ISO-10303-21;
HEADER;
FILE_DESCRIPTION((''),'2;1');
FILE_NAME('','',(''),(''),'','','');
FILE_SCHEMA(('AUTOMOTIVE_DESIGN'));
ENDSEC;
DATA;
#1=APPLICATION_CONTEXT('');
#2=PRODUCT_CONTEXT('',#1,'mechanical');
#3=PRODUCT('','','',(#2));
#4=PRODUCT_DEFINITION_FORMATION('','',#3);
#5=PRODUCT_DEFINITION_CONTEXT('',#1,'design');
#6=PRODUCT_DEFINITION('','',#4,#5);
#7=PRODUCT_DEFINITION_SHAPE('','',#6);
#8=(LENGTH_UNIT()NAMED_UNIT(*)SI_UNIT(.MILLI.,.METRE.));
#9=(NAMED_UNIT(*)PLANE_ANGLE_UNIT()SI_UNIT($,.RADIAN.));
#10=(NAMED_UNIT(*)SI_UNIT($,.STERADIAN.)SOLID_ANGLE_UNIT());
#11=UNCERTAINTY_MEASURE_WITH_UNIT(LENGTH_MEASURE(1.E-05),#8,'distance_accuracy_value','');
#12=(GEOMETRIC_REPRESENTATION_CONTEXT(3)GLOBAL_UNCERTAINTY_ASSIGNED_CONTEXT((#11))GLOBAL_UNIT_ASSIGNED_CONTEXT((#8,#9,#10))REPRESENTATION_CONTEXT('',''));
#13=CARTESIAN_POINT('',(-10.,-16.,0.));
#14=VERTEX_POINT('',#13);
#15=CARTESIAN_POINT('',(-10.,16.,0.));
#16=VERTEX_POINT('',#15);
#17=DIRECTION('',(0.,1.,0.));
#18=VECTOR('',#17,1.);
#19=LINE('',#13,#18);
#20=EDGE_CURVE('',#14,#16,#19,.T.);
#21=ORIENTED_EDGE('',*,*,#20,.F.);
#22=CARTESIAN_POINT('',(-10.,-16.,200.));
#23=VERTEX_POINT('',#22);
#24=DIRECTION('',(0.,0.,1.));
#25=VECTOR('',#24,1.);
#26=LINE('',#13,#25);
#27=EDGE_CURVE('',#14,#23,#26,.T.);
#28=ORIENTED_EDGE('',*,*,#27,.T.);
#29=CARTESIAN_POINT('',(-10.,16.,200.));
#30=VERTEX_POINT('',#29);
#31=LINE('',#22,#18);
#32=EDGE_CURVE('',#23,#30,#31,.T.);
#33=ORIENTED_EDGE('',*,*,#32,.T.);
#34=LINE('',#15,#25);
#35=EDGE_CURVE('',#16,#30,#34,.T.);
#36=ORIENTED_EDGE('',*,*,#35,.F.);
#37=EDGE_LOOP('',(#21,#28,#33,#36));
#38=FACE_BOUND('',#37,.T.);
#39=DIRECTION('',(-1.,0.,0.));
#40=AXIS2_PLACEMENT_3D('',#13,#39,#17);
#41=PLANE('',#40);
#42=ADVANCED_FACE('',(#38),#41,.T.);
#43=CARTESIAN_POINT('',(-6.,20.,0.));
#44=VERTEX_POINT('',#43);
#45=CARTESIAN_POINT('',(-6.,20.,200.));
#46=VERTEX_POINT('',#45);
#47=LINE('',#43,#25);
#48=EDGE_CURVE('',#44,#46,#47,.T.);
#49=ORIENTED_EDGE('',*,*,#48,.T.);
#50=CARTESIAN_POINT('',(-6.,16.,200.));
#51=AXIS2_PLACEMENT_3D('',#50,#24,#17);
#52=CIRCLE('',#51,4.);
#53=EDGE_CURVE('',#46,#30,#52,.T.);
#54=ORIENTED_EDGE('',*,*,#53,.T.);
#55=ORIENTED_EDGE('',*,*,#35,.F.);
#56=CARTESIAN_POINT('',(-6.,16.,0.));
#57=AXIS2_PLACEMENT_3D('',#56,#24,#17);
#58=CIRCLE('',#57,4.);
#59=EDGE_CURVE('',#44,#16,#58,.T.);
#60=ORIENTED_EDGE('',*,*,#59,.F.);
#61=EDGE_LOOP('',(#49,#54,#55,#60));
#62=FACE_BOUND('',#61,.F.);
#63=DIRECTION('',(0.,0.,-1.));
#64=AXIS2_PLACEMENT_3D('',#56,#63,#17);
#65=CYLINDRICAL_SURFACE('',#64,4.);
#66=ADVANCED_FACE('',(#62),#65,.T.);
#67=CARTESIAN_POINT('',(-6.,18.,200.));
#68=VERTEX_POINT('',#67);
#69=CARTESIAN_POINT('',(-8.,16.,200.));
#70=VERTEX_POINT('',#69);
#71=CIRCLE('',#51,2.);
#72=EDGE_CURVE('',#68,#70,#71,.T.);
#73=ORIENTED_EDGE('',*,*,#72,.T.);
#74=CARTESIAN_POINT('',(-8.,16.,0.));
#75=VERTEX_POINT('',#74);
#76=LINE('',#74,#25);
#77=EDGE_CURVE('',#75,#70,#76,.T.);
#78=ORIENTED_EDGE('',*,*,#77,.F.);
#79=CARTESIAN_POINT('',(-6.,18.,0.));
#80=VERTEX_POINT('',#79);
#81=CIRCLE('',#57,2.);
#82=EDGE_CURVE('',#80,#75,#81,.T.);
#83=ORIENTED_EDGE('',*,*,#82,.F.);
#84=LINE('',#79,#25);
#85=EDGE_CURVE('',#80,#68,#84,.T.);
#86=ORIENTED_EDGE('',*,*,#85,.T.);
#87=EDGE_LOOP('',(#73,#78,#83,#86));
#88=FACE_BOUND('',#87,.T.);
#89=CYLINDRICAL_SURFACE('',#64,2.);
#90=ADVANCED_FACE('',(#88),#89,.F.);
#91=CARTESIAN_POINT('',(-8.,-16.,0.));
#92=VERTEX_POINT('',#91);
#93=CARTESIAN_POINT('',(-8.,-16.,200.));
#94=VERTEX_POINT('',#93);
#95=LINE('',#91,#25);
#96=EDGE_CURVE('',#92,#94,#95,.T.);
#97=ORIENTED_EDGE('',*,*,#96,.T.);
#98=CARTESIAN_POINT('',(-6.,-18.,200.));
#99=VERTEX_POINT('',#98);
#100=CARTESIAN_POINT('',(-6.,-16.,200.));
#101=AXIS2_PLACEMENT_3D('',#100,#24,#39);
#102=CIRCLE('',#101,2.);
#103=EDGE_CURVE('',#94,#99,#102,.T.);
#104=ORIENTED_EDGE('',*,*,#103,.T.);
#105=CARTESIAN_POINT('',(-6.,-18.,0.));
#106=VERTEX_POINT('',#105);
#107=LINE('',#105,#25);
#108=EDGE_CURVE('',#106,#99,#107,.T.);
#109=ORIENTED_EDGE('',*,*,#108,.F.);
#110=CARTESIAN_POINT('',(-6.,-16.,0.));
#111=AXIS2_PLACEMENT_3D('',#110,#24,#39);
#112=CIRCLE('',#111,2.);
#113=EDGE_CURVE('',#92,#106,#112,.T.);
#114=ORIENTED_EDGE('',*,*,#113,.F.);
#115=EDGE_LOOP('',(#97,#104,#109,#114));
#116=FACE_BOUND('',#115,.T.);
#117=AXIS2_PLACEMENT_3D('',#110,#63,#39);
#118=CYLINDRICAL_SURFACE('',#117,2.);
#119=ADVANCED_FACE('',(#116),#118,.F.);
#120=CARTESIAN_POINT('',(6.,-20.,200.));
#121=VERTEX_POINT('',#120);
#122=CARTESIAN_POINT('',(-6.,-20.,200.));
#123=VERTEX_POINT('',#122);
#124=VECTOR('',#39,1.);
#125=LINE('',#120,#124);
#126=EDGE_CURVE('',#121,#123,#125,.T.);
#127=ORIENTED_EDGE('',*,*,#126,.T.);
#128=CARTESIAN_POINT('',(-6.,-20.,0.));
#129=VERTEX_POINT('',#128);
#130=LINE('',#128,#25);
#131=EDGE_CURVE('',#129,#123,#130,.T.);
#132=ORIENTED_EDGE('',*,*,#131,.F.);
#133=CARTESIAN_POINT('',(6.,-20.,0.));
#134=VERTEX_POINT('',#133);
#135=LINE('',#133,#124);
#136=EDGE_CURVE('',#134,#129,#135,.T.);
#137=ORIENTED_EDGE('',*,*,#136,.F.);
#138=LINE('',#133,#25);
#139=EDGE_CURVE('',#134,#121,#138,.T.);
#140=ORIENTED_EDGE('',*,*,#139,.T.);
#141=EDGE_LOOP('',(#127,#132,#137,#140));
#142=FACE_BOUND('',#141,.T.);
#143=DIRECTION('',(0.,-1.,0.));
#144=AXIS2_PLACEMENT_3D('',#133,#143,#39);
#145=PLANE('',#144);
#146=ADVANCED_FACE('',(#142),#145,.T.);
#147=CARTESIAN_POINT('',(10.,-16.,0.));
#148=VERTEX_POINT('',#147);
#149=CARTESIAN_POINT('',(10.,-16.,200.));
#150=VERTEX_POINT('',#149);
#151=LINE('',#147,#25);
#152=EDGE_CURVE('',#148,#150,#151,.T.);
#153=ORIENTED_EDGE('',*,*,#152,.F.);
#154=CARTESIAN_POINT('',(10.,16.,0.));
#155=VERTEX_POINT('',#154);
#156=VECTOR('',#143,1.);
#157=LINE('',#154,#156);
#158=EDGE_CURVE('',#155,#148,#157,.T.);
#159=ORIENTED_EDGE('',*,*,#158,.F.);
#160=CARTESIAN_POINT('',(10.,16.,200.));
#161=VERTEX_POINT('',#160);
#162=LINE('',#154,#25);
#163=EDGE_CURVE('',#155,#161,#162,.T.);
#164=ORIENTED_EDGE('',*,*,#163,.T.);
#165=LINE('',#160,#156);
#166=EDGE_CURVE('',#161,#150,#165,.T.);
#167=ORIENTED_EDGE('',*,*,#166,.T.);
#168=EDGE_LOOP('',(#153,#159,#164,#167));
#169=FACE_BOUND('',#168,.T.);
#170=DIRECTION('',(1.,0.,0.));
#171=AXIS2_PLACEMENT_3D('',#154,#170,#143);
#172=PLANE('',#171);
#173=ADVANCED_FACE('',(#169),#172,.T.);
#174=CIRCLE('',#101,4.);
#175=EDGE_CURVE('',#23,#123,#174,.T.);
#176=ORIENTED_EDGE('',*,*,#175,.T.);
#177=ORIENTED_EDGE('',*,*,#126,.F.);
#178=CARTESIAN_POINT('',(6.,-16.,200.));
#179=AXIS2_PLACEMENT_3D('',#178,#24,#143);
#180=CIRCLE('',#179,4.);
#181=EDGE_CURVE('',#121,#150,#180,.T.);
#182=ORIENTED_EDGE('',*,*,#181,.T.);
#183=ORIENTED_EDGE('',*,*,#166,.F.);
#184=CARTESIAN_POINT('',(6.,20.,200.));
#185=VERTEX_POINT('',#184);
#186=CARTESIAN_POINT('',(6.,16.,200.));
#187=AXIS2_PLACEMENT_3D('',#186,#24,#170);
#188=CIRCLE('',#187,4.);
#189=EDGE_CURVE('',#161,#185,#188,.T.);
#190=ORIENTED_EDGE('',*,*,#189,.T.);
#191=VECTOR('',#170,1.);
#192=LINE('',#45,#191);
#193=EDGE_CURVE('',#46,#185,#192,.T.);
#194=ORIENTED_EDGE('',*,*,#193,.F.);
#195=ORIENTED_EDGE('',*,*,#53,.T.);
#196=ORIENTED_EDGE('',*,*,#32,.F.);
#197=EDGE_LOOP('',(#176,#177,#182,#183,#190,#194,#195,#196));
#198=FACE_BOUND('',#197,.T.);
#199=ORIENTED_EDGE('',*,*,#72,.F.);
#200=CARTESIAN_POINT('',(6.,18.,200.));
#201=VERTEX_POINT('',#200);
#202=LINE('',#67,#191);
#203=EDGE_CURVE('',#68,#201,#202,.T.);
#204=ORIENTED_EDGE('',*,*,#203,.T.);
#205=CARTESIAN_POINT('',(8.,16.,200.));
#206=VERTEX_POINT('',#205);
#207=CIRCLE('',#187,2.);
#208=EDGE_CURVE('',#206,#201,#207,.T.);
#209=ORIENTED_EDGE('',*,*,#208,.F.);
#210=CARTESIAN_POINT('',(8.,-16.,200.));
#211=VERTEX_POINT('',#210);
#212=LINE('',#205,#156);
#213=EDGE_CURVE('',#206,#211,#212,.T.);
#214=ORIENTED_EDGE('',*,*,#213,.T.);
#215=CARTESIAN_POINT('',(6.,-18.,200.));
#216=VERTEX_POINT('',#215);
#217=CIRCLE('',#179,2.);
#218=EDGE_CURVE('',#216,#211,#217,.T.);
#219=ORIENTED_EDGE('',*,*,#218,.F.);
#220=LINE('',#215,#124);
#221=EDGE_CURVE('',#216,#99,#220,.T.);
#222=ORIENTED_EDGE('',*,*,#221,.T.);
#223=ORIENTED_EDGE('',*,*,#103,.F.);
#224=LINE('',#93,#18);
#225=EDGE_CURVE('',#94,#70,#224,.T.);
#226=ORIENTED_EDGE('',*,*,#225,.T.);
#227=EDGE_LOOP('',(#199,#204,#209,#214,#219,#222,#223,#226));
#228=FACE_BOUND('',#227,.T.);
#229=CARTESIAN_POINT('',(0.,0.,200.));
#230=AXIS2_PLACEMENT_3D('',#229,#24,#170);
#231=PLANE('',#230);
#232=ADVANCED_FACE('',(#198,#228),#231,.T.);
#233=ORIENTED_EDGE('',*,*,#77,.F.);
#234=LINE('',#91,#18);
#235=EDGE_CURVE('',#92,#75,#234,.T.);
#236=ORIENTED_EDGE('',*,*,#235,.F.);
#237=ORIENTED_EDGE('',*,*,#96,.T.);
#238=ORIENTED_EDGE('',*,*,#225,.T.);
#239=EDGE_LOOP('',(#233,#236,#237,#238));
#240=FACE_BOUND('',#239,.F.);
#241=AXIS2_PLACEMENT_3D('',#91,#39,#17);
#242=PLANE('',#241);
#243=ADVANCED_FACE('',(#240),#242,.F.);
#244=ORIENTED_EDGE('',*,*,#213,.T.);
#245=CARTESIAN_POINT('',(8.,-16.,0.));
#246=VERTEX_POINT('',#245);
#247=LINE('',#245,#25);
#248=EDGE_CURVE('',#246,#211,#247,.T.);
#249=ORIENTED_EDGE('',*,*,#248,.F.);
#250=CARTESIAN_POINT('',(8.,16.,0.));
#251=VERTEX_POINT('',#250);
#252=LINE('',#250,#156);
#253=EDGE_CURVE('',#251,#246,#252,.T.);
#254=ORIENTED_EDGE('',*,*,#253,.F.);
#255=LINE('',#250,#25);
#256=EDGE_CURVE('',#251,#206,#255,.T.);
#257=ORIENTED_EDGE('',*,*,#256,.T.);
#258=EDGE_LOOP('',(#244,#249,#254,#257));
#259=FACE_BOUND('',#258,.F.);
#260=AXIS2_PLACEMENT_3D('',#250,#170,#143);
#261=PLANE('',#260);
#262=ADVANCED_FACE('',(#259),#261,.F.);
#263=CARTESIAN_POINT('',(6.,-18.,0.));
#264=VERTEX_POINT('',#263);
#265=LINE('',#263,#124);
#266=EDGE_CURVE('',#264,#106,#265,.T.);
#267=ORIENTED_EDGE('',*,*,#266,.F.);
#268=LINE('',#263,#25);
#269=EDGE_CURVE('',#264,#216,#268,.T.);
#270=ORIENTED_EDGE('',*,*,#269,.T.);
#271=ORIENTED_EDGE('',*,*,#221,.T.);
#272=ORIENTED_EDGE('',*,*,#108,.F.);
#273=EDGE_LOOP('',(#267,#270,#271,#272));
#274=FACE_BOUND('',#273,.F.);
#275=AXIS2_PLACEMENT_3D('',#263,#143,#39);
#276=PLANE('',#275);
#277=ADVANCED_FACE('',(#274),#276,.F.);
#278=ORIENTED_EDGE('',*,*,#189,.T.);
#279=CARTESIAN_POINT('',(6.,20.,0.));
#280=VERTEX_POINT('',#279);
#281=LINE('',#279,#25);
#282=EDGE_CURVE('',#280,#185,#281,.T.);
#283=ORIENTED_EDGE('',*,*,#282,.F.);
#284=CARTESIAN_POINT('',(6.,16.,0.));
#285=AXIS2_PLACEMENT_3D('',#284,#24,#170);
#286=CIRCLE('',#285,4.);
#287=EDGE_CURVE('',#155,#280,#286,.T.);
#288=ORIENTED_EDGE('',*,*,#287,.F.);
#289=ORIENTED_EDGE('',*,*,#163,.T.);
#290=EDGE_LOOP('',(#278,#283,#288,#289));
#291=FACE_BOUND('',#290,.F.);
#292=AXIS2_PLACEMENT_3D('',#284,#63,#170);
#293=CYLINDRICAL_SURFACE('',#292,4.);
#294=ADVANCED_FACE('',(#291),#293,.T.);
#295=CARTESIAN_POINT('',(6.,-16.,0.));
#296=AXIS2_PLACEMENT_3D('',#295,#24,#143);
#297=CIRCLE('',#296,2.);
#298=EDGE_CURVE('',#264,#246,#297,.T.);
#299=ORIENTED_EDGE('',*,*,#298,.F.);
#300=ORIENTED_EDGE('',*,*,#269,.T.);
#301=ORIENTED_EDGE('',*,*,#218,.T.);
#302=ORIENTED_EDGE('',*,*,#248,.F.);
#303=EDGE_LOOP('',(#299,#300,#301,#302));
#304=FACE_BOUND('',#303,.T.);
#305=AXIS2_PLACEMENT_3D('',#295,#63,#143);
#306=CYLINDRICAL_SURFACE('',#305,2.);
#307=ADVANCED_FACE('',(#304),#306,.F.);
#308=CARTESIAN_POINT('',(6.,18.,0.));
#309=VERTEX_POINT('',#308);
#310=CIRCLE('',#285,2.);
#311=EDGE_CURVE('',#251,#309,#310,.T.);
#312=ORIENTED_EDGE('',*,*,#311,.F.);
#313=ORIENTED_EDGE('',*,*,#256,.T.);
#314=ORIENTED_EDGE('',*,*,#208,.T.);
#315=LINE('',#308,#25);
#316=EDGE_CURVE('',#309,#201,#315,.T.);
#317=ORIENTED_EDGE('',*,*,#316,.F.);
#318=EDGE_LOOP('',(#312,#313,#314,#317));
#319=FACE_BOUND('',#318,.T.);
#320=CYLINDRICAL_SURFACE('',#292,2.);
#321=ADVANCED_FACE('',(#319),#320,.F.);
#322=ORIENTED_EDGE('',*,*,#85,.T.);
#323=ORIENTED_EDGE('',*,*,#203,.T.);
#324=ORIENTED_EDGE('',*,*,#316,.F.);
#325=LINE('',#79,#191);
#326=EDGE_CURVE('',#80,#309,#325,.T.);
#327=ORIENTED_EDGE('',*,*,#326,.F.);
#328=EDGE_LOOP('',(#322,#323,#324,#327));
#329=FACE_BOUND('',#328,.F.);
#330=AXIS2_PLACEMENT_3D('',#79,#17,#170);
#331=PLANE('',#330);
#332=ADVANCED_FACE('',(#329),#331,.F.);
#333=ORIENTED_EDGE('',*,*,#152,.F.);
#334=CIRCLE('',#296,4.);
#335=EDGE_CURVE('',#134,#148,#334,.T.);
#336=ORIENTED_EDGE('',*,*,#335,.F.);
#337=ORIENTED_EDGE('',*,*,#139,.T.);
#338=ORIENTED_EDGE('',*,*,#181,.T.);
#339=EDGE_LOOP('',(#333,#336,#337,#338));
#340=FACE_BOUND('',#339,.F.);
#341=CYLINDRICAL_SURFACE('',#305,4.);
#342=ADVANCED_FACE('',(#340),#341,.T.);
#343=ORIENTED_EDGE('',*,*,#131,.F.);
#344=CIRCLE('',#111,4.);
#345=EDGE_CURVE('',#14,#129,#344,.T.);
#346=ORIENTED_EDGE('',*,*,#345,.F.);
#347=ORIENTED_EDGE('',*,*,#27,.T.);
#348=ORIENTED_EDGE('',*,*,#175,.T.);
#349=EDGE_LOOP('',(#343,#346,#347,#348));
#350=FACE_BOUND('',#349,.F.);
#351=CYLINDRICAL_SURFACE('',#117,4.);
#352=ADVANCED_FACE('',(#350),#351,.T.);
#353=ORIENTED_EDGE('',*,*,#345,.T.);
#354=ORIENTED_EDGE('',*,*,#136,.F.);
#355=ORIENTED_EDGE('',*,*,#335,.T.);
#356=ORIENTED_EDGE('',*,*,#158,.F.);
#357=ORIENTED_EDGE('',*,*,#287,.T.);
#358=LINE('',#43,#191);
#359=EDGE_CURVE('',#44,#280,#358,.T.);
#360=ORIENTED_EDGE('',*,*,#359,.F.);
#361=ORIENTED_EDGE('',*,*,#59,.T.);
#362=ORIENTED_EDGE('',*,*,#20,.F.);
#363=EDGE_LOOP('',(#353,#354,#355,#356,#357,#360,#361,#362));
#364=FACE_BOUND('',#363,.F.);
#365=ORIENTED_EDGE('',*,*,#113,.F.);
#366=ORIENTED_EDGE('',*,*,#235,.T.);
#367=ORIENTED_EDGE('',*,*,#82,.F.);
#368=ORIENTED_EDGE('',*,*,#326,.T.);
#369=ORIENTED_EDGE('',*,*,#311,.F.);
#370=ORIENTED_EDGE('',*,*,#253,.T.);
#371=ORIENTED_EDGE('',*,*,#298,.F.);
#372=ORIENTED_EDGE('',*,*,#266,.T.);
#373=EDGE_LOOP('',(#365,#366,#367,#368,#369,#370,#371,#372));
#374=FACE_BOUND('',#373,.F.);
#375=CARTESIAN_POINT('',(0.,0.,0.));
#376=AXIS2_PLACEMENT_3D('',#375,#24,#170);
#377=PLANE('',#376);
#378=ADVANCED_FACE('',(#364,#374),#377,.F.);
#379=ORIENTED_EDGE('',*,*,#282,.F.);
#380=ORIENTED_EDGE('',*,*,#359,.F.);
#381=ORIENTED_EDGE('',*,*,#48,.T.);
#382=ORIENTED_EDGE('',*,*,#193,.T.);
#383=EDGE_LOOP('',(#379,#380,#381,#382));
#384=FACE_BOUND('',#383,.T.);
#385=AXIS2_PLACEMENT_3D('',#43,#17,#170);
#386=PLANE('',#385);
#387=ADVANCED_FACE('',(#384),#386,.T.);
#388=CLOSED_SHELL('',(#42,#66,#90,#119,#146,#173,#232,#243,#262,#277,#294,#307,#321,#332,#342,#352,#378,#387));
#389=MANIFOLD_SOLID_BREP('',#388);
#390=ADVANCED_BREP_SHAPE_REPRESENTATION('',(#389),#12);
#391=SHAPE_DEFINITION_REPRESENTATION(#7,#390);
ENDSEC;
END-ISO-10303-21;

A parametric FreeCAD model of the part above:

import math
import FreeCAD as App
import Part
import Sketcher
from FreeCAD import Vector
Q = App.Units.Quantity

doc = App.newDocument("Part")
body = doc.addObject("PartDesign::Body", "Body")

# Sketch on XY plane
sketch1 = body.newObject("Sketcher::SketchObject", "Sketch")
sketch1.AttachmentSupport = (doc.getObject("XY_Plane"), [""])
sketch1.MapMode = "FlatFace"
sketch1.addGeometry([
    Part.LineSegment(Vector(-10, 16, 0), Vector(-10, -16, 0)),  # 0
    Part.ArcOfCircle(Part.Circle(Vector(-6, -16, 0), Vector(0, 0, 1), 4), math.radians(180), math.radians(270)),  # 1
    Part.LineSegment(Vector(-6, -20, 0), Vector(6, -20, 0)),  # 2
    Part.ArcOfCircle(Part.Circle(Vector(6, -16, 0), Vector(0, 0, 1), 4), math.radians(-90), math.radians(0)),  # 3
    Part.LineSegment(Vector(10, -16, 0), Vector(10, 16, 0)),  # 4
    Part.ArcOfCircle(Part.Circle(Vector(6, 16, 0), Vector(0, 0, 1), 4), math.radians(0), math.radians(90)),  # 5
    Part.LineSegment(Vector(6, 20, 0), Vector(-6, 20, 0)),  # 6
    Part.ArcOfCircle(Part.Circle(Vector(-6, 16, 0), Vector(0, 0, 1), 4), math.radians(90), math.radians(180)),  # 7
    Part.ArcOfCircle(Part.Circle(Vector(-6, 16, 0), Vector(0, 0, 1), 2), math.radians(90), math.radians(180)),  # 8
    Part.LineSegment(Vector(-6, 18, 0), Vector(6, 18, 0)),  # 9
    Part.ArcOfCircle(Part.Circle(Vector(6, 16, 0), Vector(0, 0, 1), 2), math.radians(0), math.radians(90)),  # 10
    Part.LineSegment(Vector(8, 16, 0), Vector(8, -16, 0)),  # 11
    Part.ArcOfCircle(Part.Circle(Vector(6, -16, 0), Vector(0, 0, 1), 2), math.radians(-90), math.radians(0)),  # 12
    Part.LineSegment(Vector(6, -18, 0), Vector(-6, -18, 0)),  # 13
    Part.ArcOfCircle(Part.Circle(Vector(-6, -16, 0), Vector(0, 0, 1), 2), math.radians(180), math.radians(270)),  # 14
    Part.LineSegment(Vector(-8, -16, 0), Vector(-8, 16, 0)),  # 15
], False)
sketch1.addConstraint([
    Sketcher.Constraint("Tangent", 0, 2, 1, 1),
    Sketcher.Constraint("Tangent", 1, 2, 2, 1),
    Sketcher.Constraint("Tangent", 2, 2, 3, 1),
    Sketcher.Constraint("Tangent", 3, 2, 4, 1),
    Sketcher.Constraint("Tangent", 4, 2, 5, 1),
    Sketcher.Constraint("Tangent", 5, 2, 6, 1),
    Sketcher.Constraint("Tangent", 6, 2, 7, 1),
    Sketcher.Constraint("Tangent", 7, 2, 0, 1),
    Sketcher.Constraint("Tangent", 8, 1, 9, 1),
    Sketcher.Constraint("Tangent", 9, 2, 10, 2),
    Sketcher.Constraint("Tangent", 10, 1, 11, 1),
    Sketcher.Constraint("Tangent", 11, 2, 12, 2),
    Sketcher.Constraint("Tangent", 12, 1, 13, 1),
    Sketcher.Constraint("Tangent", 13, 2, 14, 2),
    Sketcher.Constraint("Tangent", 14, 1, 15, 1),
    Sketcher.Constraint("Tangent", 15, 2, 8, 2),
    Sketcher.Constraint("Vertical", 0),
    Sketcher.Constraint("Horizontal", 2),
    Sketcher.Constraint("Vertical", 4),
    Sketcher.Constraint("Horizontal", 6),
    Sketcher.Constraint("Horizontal", 9),
    Sketcher.Constraint("Vertical", 11),
    Sketcher.Constraint("Horizontal", 13),
    Sketcher.Constraint("Vertical", 15),
    Sketcher.Constraint("Coincident", 8, 3, 7, 3),
    Sketcher.Constraint("Coincident", 10, 3, 5, 3),
    Sketcher.Constraint("Coincident", 12, 3, 3, 3),
    Sketcher.Constraint("Equal", 1, 3),
    Sketcher.Constraint("Equal", 3, 5),
    Sketcher.Constraint("Equal", 5, 7),
    Sketcher.Constraint("Equal", 12, 14),
    Sketcher.Constraint("Symmetric", 1, 3, 5, 3, -1, 1),
    Sketcher.Constraint("Radius", 1, Q("4 mm")),
    Sketcher.Constraint("Radius", 8, Q("2 mm")),
    Sketcher.Constraint("DistanceX", 0, 2, -1, 1, Q("10 mm")),
    Sketcher.Constraint("DistanceY", 1, 2, -1, 1, Q("20 mm")),
])
pad1 = body.newObject("PartDesign::Pad", "Pad")
pad1.Profile = sketch1
pad1.Length = 200

doc.recompute()
